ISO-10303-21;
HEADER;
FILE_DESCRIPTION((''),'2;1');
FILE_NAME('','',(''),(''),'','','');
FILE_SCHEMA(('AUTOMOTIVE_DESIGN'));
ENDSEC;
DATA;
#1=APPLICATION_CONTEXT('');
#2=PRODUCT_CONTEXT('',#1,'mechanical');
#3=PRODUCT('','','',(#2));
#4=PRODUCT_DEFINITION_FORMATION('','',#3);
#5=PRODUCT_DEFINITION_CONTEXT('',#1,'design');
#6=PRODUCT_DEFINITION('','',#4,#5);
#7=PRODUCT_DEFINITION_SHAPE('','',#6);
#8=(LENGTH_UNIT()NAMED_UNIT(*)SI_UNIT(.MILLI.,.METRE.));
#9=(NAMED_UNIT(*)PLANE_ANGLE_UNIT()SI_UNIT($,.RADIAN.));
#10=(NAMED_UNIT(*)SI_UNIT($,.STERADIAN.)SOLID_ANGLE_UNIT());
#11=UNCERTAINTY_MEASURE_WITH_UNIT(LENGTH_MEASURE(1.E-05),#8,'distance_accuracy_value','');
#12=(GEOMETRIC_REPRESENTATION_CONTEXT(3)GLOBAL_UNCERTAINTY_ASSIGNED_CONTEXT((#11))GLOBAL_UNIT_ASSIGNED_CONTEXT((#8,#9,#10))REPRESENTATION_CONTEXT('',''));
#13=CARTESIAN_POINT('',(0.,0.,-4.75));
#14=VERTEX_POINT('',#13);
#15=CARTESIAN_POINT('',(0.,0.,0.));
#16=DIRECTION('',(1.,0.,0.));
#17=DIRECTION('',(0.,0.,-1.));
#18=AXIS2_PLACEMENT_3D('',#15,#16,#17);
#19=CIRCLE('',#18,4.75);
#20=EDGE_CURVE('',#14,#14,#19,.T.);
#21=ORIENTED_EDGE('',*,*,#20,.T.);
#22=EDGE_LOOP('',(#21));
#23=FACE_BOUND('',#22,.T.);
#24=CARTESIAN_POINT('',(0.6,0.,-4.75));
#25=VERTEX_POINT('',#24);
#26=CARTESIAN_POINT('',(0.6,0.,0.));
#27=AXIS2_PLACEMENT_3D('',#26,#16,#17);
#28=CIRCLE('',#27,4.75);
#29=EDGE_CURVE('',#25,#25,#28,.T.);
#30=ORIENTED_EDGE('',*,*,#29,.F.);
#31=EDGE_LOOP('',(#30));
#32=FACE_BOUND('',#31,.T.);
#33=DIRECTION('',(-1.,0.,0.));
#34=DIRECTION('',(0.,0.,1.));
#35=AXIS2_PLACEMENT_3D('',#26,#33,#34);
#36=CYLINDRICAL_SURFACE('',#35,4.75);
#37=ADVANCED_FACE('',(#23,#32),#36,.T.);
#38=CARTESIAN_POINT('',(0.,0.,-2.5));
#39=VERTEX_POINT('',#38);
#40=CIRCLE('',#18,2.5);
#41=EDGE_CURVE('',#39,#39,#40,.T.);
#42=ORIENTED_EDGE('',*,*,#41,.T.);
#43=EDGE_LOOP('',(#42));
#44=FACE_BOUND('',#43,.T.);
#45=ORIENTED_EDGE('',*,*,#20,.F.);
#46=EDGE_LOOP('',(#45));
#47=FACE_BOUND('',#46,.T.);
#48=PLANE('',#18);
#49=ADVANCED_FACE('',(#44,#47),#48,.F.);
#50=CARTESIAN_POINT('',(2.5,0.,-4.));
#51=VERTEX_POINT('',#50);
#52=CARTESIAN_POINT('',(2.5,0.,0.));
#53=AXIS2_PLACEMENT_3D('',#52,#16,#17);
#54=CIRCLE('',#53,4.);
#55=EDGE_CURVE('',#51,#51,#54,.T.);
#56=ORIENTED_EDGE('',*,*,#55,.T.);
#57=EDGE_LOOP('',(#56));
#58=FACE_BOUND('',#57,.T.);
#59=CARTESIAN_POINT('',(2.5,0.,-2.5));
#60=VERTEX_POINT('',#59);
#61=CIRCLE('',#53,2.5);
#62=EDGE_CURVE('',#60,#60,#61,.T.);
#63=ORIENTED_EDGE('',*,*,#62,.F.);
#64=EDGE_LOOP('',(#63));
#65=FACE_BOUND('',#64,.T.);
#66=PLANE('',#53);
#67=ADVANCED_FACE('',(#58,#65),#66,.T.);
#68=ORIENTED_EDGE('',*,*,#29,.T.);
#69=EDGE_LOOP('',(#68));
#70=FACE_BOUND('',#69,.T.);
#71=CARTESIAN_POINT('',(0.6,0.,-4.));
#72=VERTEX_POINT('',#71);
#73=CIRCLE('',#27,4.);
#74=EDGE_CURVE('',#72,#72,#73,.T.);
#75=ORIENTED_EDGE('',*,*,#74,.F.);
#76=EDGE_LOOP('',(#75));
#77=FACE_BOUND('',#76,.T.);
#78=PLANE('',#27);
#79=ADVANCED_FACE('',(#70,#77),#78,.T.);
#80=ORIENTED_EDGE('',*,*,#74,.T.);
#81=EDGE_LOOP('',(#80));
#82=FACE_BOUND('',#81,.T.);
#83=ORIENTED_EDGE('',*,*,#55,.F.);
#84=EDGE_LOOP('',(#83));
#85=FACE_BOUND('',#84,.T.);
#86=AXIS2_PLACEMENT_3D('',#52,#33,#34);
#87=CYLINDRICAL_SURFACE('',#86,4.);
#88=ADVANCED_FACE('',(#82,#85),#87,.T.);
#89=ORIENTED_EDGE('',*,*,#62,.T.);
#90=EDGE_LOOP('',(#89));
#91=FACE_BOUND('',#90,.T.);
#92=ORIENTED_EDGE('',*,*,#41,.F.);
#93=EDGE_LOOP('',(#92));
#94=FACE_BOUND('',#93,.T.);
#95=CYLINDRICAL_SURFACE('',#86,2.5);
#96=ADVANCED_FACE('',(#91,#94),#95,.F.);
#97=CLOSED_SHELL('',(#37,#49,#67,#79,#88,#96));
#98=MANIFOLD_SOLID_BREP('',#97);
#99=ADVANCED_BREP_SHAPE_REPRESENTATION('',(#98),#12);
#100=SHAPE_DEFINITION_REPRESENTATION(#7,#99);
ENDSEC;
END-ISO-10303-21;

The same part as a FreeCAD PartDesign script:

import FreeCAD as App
import Part
import Sketcher

V = App.Vector
Q = App.Units.Quantity

doc = App.newDocument("Part")
body = doc.addObject("PartDesign::Body", "Body")

# Sketch on YZ plane
sketch1 = body.newObject("Sketcher::SketchObject", "Sketch")
sketch1.AttachmentSupport = (doc.getObject("YZ_Plane"), [""])
sketch1.MapMode = "FlatFace"
sketch1.addGeometry([
    Part.Circle(V(0, 0, 0), V(0, 0, 1), 4),
    Part.Circle(V(0, 0, 0), V(0, 0, 1), 2.5),
], False)
sketch1.addConstraint([
    Sketcher.Constraint("Coincident", 0, 3, -1, 1),
    Sketcher.Constraint("Coincident", 1, 3, -1, 1),
    Sketcher.Constraint("Diameter", 0, Q("8 mm")),
    Sketcher.Constraint("Diameter", 1, Q("5 mm")),
])
pad1 = body.newObject("PartDesign::Pad", "Pad")
pad1.Profile = sketch1
pad1.Length = 2.5

# Sketch on YZ plane
sketch2 = body.newObject("Sketcher::SketchObject", "Sketch001")
sketch2.AttachmentSupport = (doc.getObject("YZ_Plane"), [""])
sketch2.MapMode = "FlatFace"
sketch2.addGeometry([
    Part.Circle(V(0, 0, 0), V(0, 0, 1), 4.8),
    Part.Circle(V(0, 0, 0), V(0, 0, 1), 4),
], False)
sketch2.addConstraint([
    Sketcher.Constraint("Coincident", 0, 3, -1, 1),
    Sketcher.Constraint("Coincident", 1, 3, -1, 1),
    Sketcher.Constraint("Diameter", 1, Q("8 mm")),
    Sketcher.Constraint("Diameter", 0, Q("9.5 mm")),
])
pad2 = body.newObject("PartDesign::Pad", "Pad001")
pad2.Profile = sketch2
pad2.Length = 0.6

doc.recompute()
